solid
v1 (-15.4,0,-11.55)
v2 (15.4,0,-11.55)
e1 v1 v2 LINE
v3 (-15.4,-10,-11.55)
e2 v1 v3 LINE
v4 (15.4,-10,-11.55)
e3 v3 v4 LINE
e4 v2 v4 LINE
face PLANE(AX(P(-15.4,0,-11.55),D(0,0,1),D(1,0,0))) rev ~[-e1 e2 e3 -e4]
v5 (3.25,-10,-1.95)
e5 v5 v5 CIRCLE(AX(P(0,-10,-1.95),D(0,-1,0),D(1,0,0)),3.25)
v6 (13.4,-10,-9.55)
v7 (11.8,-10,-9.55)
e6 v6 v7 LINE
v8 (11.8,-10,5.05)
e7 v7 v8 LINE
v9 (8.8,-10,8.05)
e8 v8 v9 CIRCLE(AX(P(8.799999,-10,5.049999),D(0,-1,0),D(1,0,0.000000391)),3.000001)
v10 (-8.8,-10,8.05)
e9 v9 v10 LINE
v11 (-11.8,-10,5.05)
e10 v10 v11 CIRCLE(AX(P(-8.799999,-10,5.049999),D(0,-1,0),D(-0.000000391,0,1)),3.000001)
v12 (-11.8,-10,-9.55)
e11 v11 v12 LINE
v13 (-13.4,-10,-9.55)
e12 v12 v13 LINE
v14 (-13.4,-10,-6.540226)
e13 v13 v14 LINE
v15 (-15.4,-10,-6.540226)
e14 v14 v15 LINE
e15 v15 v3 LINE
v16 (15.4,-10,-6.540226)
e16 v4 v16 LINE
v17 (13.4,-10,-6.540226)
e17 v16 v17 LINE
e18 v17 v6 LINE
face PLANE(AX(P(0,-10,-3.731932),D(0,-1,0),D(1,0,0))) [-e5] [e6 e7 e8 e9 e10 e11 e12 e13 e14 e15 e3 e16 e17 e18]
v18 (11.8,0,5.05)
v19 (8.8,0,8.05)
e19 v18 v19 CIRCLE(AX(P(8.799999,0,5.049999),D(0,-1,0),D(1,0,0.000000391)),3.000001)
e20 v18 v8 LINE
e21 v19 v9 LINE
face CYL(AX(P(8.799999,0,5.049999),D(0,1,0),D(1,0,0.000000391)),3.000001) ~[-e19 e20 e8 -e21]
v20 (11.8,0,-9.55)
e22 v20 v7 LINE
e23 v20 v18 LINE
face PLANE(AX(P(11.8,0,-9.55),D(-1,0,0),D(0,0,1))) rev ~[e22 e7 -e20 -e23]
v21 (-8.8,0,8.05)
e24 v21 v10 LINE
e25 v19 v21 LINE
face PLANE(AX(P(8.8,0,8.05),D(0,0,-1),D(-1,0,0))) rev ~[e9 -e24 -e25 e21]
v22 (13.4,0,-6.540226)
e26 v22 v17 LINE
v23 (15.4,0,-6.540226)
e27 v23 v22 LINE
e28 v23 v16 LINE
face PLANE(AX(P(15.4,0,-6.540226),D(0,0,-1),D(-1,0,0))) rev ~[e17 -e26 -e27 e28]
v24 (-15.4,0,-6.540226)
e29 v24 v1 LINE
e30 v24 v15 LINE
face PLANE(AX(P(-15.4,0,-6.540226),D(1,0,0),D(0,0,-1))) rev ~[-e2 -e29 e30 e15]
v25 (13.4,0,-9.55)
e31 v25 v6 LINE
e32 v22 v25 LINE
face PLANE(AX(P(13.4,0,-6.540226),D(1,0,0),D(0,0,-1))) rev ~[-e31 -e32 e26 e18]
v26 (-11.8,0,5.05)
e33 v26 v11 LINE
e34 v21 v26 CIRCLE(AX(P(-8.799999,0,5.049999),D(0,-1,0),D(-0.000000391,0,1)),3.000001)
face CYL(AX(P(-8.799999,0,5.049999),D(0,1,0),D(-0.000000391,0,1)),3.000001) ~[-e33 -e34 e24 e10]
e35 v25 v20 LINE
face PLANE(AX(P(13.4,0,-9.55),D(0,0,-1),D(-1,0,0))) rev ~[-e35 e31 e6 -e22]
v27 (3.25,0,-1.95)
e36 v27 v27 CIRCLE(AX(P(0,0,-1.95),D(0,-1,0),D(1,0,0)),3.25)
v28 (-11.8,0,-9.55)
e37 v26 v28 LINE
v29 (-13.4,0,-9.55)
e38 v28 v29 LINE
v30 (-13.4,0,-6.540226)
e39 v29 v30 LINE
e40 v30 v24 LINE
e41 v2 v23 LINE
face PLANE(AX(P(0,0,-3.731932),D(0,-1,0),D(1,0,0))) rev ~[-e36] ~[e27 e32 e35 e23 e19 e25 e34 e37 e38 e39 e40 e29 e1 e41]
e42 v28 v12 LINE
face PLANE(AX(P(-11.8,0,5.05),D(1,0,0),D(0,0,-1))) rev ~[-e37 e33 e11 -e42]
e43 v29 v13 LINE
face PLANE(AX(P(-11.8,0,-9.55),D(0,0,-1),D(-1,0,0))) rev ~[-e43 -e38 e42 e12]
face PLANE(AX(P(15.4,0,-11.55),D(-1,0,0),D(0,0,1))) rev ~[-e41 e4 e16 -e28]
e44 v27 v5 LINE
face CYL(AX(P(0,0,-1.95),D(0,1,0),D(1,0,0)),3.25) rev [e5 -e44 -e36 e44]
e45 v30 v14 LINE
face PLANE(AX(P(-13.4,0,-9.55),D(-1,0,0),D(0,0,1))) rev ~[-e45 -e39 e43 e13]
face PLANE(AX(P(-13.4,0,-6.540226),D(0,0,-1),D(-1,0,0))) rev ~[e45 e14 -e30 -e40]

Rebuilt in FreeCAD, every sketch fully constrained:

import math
import FreeCAD as App
import Part
import Sketcher
from FreeCAD import Vector
Q = App.Units.Quantity

doc = App.newDocument("Part")
body = doc.addObject("PartDesign::Body", "Body")

# Sketch on XZ plane
sketch1 = body.newObject("Sketcher::SketchObject", "Sketch")
sketch1.AttachmentSupport = (doc.getObject("XZ_Plane"), [""])
sketch1.MapMode = "FlatFace"
sketch1.addGeometry([
    Part.LineSegment(Vector(-13.4, -6.5, 0), Vector(-15.4, -6.5, 0)),  # 0
    Part.LineSegment(Vector(-15.4, -6.5, 0), Vector(-15.4, -11.6, 0)),  # 1
    Part.LineSegment(Vector(-15.4, -11.6, 0), Vector(15.4, -11.6, 0)),  # 2
    Part.LineSegment(Vector(15.4, -11.6, 0), Vector(15.4, -6.5, 0)),  # 3
    Part.LineSegment(Vector(15.4, -6.5, 0), Vector(13.4, -6.5, 0)),  # 4
    Part.LineSegment(Vector(13.4, -6.5, 0), Vector(13.4, -9.6, 0)),  # 5
    Part.LineSegment(Vector(13.4, -9.6, 0), Vector(11.8, -9.6, 0)),  # 6
    Part.LineSegment(Vector(11.8, -9.6, 0), Vector(11.8, 5, 0)),  # 7
    Part.ArcOfCircle(Part.Circle(Vector(8.8, 5, 0), Vector(0, 0, 1), 3), math.radians(0), math.radians(90)),  # 8
    Part.LineSegment(Vector(8.8, 8.1, 0), Vector(-8.8, 8.1, 0)),  # 9
    Part.ArcOfCircle(Part.Circle(Vector(-8.8, 5, 0), Vector(0, 0, 1), 3), math.radians(90), math.radians(180)),  # 10
    Part.LineSegment(Vector(-11.8, 5, 0), Vector(-11.8, -9.6, 0)),  # 11
    Part.LineSegment(Vector(-11.8, -9.6, 0), Vector(-13.4, -9.6, 0)),  # 12
    Part.LineSegment(Vector(-13.4, -9.6, 0), Vector(-13.4, -6.5, 0)),  # 13
    Part.Circle(Vector(0, -1.9, 0), Vector(0, 0, 1), 3.2),  # 14
], False)
sketch1.addConstraint([
    Sketcher.Constraint("Coincident", 0, 2, 1, 1),
    Sketcher.Constraint("Coincident", 1, 2, 2, 1),
    Sketcher.Constraint("Coincident", 2, 2, 3, 1),
    Sketcher.Constraint("Coincident", 3, 2, 4, 1),
    Sketcher.Constraint("Coincident", 4, 2, 5, 1),
    Sketcher.Constraint("Coincident", 5, 2, 6, 1),
    Sketcher.Constraint("Coincident", 6, 2, 7, 1),
    Sketcher.Constraint("Tangent", 7, 2, 8, 1),
    Sketcher.Constraint("Tangent", 8, 2, 9, 1),
    Sketcher.Constraint("Tangent", 9, 2, 10, 1),
    Sketcher.Constraint("Tangent", 10, 2, 11, 1),
    Sketcher.Constraint("Coincident", 11, 2, 12, 1),
    Sketcher.Constraint("Coincident", 12, 2, 13, 1),
    Sketcher.Constraint("Coincident", 13, 2, 0, 1),
    Sketcher.Constraint("Horizontal", 0),
    Sketcher.Constraint("Vertical", 1),
    Sketcher.Constraint("Horizontal", 2),
    Sketcher.Constraint("Vertical", 3),
    Sketcher.Constraint("Horizontal", 4),
    Sketcher.Constraint("Vertical", 5),
    Sketcher.Constraint("Horizontal", 6),
    Sketcher.Constraint("Vertical", 7),
    Sketcher.Constraint("Horizontal", 9),
    Sketcher.Constraint("Vertical", 11),
    Sketcher.Constraint("Horizontal", 12),
    Sketcher.Constraint("Vertical", 13),
    Sketcher.Constraint("Equal", 8, 10),
    Sketcher.Constraint("Symmetric", 0, 2, 3, 2, -2),
    Sketcher.Constraint("Symmetric", 6, 2, 11, 2, -2),
    Sketcher.Constraint("PointOnObject", 14, 3, -2),
    Sketcher.Constraint("Equal", 0, 4),
    Sketcher.Constraint("Radius", 8, Q("3.000001 mm")),
    Sketcher.Constraint("Diameter", 14, Q("6.5 mm")),
    Sketcher.Constraint("DistanceX", 0, 2, 0, 1, Q("2 mm")),
    Sketcher.Constraint("DistanceX", 2, 1, 2, 2, Q("30.8 mm")),
    Sketcher.Constraint("DistanceX", 6, 2, 6, 1, Q("1.6 mm")),
    Sketcher.Constraint("DistanceY", 7, 1, 7, 2, Q("14.6 mm")),
    Sketcher.Constraint("DistanceY", 14, 3, 8, 3, Q("6.999999 mm")),
    Sketcher.Constraint("DistanceY", 2, 2, 5, 2, Q("2 mm")),
    Sketcher.Constraint("DistanceY", -1, 1, 8, 3, Q("5.049999 mm")),
    Sketcher.Constraint("DistanceY", 1, 2, 1, 1, Q("5.009774 mm")),
])
pad1 = body.newObject("PartDesign::Pad", "Pad")
pad1.Profile = sketch1
pad1.Length = 10

doc.recompute()
